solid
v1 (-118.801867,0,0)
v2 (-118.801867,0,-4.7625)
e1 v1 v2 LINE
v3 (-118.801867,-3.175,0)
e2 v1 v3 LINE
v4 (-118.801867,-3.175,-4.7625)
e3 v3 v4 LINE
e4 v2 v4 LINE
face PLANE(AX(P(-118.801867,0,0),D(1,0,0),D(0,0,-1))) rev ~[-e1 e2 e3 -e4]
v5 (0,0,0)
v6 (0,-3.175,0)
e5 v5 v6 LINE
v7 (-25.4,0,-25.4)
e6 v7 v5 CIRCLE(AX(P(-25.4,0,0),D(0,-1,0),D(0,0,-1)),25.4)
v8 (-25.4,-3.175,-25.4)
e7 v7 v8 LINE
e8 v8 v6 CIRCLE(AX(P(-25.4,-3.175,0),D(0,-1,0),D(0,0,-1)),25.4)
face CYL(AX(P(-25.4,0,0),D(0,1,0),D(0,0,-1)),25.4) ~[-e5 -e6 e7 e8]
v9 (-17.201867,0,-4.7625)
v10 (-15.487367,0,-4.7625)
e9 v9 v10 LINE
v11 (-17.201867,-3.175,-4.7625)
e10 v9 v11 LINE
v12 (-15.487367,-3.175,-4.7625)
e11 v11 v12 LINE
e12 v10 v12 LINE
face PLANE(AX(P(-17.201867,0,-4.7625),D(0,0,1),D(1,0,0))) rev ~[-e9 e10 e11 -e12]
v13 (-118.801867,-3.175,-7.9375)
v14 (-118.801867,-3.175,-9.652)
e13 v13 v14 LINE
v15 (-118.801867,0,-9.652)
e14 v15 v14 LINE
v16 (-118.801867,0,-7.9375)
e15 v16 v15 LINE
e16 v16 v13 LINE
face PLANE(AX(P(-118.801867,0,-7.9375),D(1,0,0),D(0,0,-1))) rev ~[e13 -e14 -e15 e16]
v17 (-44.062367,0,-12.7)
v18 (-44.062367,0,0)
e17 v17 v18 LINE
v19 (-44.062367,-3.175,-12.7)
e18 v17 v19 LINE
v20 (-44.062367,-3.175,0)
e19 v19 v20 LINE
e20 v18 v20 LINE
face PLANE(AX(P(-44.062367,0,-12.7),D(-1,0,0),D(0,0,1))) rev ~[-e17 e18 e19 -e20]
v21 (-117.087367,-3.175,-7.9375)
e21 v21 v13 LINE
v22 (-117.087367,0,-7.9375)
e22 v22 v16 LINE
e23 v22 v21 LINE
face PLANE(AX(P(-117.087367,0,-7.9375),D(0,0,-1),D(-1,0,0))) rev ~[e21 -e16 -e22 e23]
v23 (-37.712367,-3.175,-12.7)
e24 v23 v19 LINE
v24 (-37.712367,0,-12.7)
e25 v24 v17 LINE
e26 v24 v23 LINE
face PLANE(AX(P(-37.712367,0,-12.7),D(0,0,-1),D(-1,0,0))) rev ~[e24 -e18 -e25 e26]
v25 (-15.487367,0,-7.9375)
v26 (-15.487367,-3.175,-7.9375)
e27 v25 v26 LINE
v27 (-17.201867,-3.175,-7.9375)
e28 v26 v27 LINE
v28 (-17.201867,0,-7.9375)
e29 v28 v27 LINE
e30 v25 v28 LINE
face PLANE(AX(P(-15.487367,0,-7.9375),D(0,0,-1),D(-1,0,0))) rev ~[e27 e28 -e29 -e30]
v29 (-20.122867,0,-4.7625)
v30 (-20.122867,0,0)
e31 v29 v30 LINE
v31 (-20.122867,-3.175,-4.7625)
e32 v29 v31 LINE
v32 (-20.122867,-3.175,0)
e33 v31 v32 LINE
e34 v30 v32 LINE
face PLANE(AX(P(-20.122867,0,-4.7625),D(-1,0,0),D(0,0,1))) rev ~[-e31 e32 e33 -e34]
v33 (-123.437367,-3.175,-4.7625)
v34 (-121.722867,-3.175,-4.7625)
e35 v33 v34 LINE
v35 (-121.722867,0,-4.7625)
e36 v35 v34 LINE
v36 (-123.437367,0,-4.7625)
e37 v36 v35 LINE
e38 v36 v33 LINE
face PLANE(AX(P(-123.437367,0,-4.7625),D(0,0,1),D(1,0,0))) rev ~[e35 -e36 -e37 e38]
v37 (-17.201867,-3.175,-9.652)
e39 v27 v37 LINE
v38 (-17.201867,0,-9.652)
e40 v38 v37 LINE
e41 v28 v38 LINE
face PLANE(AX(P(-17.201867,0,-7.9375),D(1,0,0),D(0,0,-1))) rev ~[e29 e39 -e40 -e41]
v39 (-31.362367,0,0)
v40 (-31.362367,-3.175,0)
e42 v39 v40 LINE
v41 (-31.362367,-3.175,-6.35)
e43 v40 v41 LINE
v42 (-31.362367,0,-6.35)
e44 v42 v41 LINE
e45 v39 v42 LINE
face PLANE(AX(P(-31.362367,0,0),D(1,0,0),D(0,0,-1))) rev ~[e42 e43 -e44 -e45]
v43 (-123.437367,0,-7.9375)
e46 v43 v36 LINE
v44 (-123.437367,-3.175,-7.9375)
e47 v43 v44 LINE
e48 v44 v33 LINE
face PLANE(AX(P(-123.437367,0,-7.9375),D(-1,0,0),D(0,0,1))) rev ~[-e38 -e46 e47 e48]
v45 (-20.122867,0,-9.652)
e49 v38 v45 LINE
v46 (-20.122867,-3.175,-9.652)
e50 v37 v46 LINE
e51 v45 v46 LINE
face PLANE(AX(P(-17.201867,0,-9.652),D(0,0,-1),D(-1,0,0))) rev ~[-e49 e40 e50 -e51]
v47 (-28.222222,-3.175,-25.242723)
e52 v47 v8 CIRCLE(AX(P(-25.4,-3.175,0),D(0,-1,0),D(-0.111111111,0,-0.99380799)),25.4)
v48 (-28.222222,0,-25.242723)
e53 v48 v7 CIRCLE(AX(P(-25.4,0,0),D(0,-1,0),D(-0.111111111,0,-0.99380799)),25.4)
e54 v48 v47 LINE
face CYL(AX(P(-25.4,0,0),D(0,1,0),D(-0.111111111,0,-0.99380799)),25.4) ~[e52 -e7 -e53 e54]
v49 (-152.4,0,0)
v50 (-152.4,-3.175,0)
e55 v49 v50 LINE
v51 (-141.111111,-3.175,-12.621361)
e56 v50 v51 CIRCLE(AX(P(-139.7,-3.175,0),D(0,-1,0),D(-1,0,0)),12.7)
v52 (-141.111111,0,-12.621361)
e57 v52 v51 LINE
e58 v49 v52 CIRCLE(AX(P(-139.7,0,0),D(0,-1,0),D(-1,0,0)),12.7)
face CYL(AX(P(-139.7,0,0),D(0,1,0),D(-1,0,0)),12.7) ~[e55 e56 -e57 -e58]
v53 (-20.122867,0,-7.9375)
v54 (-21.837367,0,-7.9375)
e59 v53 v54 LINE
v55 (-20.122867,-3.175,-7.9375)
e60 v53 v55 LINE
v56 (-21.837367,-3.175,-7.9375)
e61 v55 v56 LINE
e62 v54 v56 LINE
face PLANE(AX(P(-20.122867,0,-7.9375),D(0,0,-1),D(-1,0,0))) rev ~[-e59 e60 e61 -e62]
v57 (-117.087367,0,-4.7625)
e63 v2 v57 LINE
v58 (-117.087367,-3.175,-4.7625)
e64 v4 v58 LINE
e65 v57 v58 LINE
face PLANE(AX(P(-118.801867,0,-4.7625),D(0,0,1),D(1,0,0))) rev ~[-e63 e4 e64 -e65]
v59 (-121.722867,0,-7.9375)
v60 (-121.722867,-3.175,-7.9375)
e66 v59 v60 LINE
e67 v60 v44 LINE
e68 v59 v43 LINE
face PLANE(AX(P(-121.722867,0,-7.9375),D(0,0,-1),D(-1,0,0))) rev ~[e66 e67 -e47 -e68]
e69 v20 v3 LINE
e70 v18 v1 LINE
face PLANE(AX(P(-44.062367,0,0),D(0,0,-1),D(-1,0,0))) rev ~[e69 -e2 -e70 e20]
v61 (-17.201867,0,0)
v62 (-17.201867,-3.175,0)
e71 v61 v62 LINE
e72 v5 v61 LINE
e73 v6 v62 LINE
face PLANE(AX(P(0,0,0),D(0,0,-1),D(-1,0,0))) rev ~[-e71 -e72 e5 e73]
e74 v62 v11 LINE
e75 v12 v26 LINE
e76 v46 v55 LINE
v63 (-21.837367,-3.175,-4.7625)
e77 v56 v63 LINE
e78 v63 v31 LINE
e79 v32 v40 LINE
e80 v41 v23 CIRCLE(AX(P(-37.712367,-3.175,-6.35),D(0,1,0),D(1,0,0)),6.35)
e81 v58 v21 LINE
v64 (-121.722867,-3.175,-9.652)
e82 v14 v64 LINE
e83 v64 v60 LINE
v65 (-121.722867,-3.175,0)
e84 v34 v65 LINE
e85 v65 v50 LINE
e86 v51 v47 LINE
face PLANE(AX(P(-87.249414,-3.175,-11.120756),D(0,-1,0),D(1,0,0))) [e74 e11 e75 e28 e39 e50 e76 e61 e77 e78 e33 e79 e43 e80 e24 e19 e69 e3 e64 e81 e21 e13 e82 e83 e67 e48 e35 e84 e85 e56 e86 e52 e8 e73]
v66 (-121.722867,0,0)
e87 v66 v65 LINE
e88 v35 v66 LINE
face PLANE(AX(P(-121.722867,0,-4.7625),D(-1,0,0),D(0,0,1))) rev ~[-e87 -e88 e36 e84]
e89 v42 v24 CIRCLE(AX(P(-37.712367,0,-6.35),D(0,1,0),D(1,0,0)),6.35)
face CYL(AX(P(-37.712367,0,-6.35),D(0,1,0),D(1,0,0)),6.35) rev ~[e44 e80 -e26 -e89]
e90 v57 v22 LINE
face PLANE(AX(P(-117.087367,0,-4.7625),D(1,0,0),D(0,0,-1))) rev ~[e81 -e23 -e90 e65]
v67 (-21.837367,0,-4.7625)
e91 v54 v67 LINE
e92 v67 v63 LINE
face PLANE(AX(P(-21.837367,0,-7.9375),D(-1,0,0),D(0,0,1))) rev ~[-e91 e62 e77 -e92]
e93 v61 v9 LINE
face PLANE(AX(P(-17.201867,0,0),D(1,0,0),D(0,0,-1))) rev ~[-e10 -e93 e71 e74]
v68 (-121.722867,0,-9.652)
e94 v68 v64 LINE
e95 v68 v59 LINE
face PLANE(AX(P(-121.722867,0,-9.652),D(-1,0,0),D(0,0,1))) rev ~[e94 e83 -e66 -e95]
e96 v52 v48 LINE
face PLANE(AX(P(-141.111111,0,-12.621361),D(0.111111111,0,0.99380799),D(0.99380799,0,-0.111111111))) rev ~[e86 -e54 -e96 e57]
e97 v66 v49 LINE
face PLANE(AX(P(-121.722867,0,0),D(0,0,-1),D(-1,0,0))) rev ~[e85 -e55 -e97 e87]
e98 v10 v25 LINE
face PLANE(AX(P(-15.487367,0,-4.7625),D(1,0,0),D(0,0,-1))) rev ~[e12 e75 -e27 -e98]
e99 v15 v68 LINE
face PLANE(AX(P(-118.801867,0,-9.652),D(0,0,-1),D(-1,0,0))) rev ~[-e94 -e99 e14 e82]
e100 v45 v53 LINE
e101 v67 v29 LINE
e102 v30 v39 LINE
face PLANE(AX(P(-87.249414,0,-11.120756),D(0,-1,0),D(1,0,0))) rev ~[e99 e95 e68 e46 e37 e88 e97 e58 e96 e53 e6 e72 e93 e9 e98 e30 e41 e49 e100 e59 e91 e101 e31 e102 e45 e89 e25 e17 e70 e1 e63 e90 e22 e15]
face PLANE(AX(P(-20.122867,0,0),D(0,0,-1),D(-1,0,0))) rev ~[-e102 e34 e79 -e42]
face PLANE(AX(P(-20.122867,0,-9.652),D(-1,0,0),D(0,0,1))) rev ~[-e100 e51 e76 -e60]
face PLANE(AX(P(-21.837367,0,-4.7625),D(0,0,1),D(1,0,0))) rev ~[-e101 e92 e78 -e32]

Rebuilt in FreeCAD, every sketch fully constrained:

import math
import FreeCAD as App
import Part
import Sketcher
from FreeCAD import Vector
Q = App.Units.Quantity

doc = App.newDocument("Part")
body = doc.addObject("PartDesign::Body", "Body")

sketch1 = body.newObject("Sketcher::SketchObject", "Sketch")
sketch1.AttachmentSupport = (doc.getObject("XZ_Plane"), [""])
sketch1.MapMode = "FlatFace"
sketch1.addGeometry([
    Part.LineSegment(Vector(-118.8, 0, 0), Vector(-118.8, -4.8, 0)),
    Part.LineSegment(Vector(-118.8, -4.8, 0), Vector(-117.1, -4.8, 0)),
    Part.LineSegment(Vector(-117.1, -4.8, 0), Vector(-117.1, -7.9, 0)),
    Part.LineSegment(Vector(-117.1, -7.9, 0), Vector(-118.8, -7.9, 0)),
    Part.LineSegment(Vector(-118.8, -7.9, 0), Vector(-118.8, -9.7, 0)),
    Part.LineSegment(Vector(-118.8, -9.7, 0), Vector(-121.7, -9.7, 0)),
    Part.LineSegment(Vector(-121.7, -9.7, 0), Vector(-121.7, -7.9, 0)),
    Part.LineSegment(Vector(-121.7, -7.9, 0), Vector(-123.4, -7.9, 0)),
    Part.LineSegment(Vector(-123.4, -7.9, 0), Vector(-123.4, -4.8, 0)),
    Part.LineSegment(Vector(-123.4, -4.8, 0), Vector(-121.7, -4.8, 0)),
    Part.LineSegment(Vector(-121.7, -4.8, 0), Vector(-121.7, 0, 0)),
    Part.LineSegment(Vector(-121.7, 0, 0), Vector(-152.4, 0, 0)),
    Part.ArcOfCircle(Part.Circle(Vector(-139.7, 0, 0), Vector(0, 0, 1), 12.7), math.radians(180), math.radians(264)),
    Part.LineSegment(Vector(-141.1, -12.6, 0), Vector(-28.2, -25.2, 0)),
    Part.ArcOfCircle(Part.Circle(Vector(-25.4, 0, 0), Vector(0, 0, 1), 25.4), math.radians(-96.38), math.radians(-90)),
    Part.ArcOfCircle(Part.Circle(Vector(-25.4, 0, 0), Vector(0, 0, 1), 25.4), math.radians(-90), math.radians(0)),
    Part.LineSegment(Vector(0, 0, 0), Vector(-17.2, 0, 0)),
    Part.LineSegment(Vector(-17.2, 0, 0), Vector(-17.2, -4.8, 0)),
    Part.LineSegment(Vector(-17.2, -4.8, 0), Vector(-15.5, -4.8, 0)),
    Part.LineSegment(Vector(-15.5, -4.8, 0), Vector(-15.5, -7.9, 0)),
    Part.LineSegment(Vector(-15.5, -7.9, 0), Vector(-17.2, -7.9, 0)),
    Part.LineSegment(Vector(-17.2, -7.9, 0), Vector(-17.2, -9.7, 0)),
    Part.LineSegment(Vector(-17.2, -9.7, 0), Vector(-20.1, -9.7, 0)),
    Part.LineSegment(Vector(-20.1, -9.7, 0), Vector(-20.1, -7.9, 0)),
    Part.LineSegment(Vector(-20.1, -7.9, 0), Vector(-21.8, -7.9, 0)),
    Part.LineSegment(Vector(-21.8, -7.9, 0), Vector(-21.8, -4.8, 0)),
    Part.LineSegment(Vector(-21.8, -4.8, 0), Vector(-20.1, -4.8, 0)),
    Part.LineSegment(Vector(-20.1, -4.8, 0), Vector(-20.1, 0, 0)),
    Part.LineSegment(Vector(-20.1, 0, 0), Vector(-31.4, 0, 0)),
    Part.LineSegment(Vector(-31.4, 0, 0), Vector(-31.4, -6.3, 0)),
    Part.ArcOfCircle(Part.Circle(Vector(-37.7, -6.3, 0), Vector(0, 0, 1), 6.3), math.radians(-90), math.radians(0)),
    Part.LineSegment(Vector(-37.7, -12.7, 0), Vector(-44.1, -12.7, 0)),
    Part.LineSegment(Vector(-44.1, -12.7, 0), Vector(-44.1, 0, 0)),
    Part.LineSegment(Vector(-44.1, 0, 0), Vector(-118.8, 0, 0)),
], False)
sketch1.addConstraint([
    Sketcher.Constraint("Coincident", 0, 2, 1, 1),
    Sketcher.Constraint("Coincident", 1, 2, 2, 1),
    Sketcher.Constraint("Coincident", 2, 2, 3, 1),
    Sketcher.Constraint("Coincident", 3, 2, 4, 1),
    Sketcher.Constraint("Coincident", 4, 2, 5, 1),
    Sketcher.Constraint("Coincident", 5, 2, 6, 1),
    Sketcher.Constraint("Coincident", 6, 2, 7, 1),
    Sketcher.Constraint("Coincident", 7, 2, 8, 1),
    Sketcher.Constraint("Coincident", 8, 2, 9, 1),
    Sketcher.Constraint("Coincident", 9, 2, 10, 1),
    Sketcher.Constraint("Coincident", 10, 2, 11, 1),
    Sketcher.Constraint("Coincident", 11, 2, 12, 1),
    Sketcher.Constraint("Tangent", 12, 2, 13, 1),
    Sketcher.Constraint("Tangent", 13, 2, 14, 1),
    Sketcher.Constraint("Tangent", 14, 2, 15, 1),
    Sketcher.Constraint("Coincident", 15, 2, 16, 1),
    Sketcher.Constraint("Coincident", 16, 2, 17, 1),
    Sketcher.Constraint("Coincident", 17, 2, 18, 1),
    Sketcher.Constraint("Coincident", 18, 2, 19, 1),
    Sketcher.Constraint("Coincident", 19, 2, 20, 1),
    Sketcher.Constraint("Coincident", 20, 2, 21, 1),
    Sketcher.Constraint("Coincident", 21, 2, 22, 1),
    Sketcher.Constraint("Coincident", 22, 2, 23, 1),
    Sketcher.Constraint("Coincident", 23, 2, 24, 1),
    Sketcher.Constraint("Coincident", 24, 2, 25, 1),
    Sketcher.Constraint("Coincident", 25, 2, 26, 1),
    Sketcher.Constraint("Coincident", 26, 2, 27, 1),
    Sketcher.Constraint("Coincident", 27, 2, 28, 1),
    Sketcher.Constraint("Coincident", 28, 2, 29, 1),
    Sketcher.Constraint("Tangent", 29, 2, 30, 2),
    Sketcher.Constraint("Tangent", 30, 1, 31, 1),
    Sketcher.Constraint("Coincident", 31, 2, 32, 1),
    Sketcher.Constraint("Coincident", 32, 2, 33, 1),
    Sketcher.Constraint("Coincident", 33, 2, 0, 1),
    Sketcher.Constraint("Vertical", 0),
    Sketcher.Constraint("Horizontal", 1),
    Sketcher.Constraint("Vertical", 2),
    Sketcher.Constraint("Horizontal", 3),
    Sketcher.Constraint("Vertical", 4),
    Sketcher.Constraint("Horizontal", 5),
    Sketcher.Constraint("Vertical", 6),
    Sketcher.Constraint("Horizontal", 7),
    Sketcher.Constraint("Vertical", 8),
    Sketcher.Constraint("Horizontal", 9),
    Sketcher.Constraint("Vertical", 10),
    Sketcher.Constraint("Horizontal", 11),
    Sketcher.Constraint("Horizontal", 16),
    Sketcher.Constraint("Vertical", 17),
    Sketcher.Constraint("Horizontal", 18),
    Sketcher.Constraint("Vertical", 19),
    Sketcher.Constraint("Horizontal", 20),
    Sketcher.Constraint("Vertical", 21),
    Sketcher.Constraint("Horizontal", 22),
    Sketcher.Constraint("Vertical", 23),
    Sketcher.Constraint("Horizontal", 24),
    Sketcher.Constraint("Vertical", 25),
    Sketcher.Constraint("Horizontal", 26),
    Sketcher.Constraint("Vertical", 27),
    Sketcher.Constraint("Horizontal", 28),
    Sketcher.Constraint("Vertical", 29),
    Sketcher.Constraint("Horizontal", 31),
    Sketcher.Constraint("Vertical", 32),
    Sketcher.Constraint("Horizontal", 33),
    Sketcher.Constraint("Coincident", 15, 2, -1, 1),
    Sketcher.Constraint("Equal", 14, 15),
    Sketcher.Constraint("PointOnObject", 12, 3, -1),
    Sketcher.Constraint("PointOnObject", 14, 3, -1),
    Sketcher.Constraint("PointOnObject", 10, 2, -1),
    Sketcher.Constraint("PointOnObject", 27, 2, -1),
    Sketcher.Constraint("PointOnObject", 32, 2, -1),
    Sketcher.Constraint("Horizontal", 3, 2, 6, 2),
    Sketcher.Constraint("Horizontal", 1, 2, 8, 2),
    Sketcher.Constraint("Horizontal", 9, 2, 17, 2),
    Sketcher.Constraint("Horizontal", 7, 2, 19, 2),
    Sketcher.Constraint("Horizontal", 5, 2, 21, 2),
    Sketcher.Constraint("Horizontal", 20, 2, 23, 2),
    Sketcher.Constraint("Horizontal", 18, 2, 25, 2),
    Sketcher.Constraint("Vertical", 0, 2, 3, 2),
    Sketcher.Constraint("Vertical", 6, 2, 9, 2),
    Sketcher.Constraint("Vertical", 15, 3, 14, 2),
    Sketcher.Constraint("Vertical", 17, 2, 20, 2),
    Sketcher.Constraint("Vertical", 23, 2, 26, 2),
    Sketcher.Constraint("Equal", 3, 7),
    Sketcher.Constraint("Equal", 9, 18),
    Sketcher.Constraint("Equal", 5, 22),
    Sketcher.Constraint("Equal", 20, 24),
    Sketcher.Constraint("Equal", 26, 4),
    Sketcher.Constraint("Equal", 31, 29),
    Sketcher.Constraint("Radius", 14, Q("1 in")),
    Sketcher.Constraint("Radius", 12, Q("0.5 in")),
    Sketcher.Constraint("Radius", 30, Q("0.25 in")),
    Sketcher.Constraint("DistanceY", 32, 1, 32, 2, Q("0.5 in")),
    Sketcher.Constraint("DistanceX", 11, 2, -1, 1, Q("6 in")),
    Sketcher.Constraint("DistanceX", 5, 2, 5, 1, Q("0.115 in")),
    Sketcher.Constraint("DistanceY", 0, 2, 0, 1, Q("0.1875 in")),
    Sketcher.Constraint("DistanceY", 2, 2, 2, 1, Q("0.125 in")),
    Sketcher.Constraint("DistanceY", 4, 2, -1, 1, Q("0.38 in")),
    Sketcher.Constraint("DistanceX", 28, 2, 28, 1, Q("0.4425 in")),
    Sketcher.Constraint("DistanceX", 33, 2, 33, 1, Q("2.9425 in")),
    Sketcher.Constraint("DistanceX", 11, 2, 11, 1, Q("30.677133 mm")),
])
pad1 = body.newObject("PartDesign::Pad", "Pad")
pad1.Profile = sketch1
pad1.Length = Q("0.125 in")

doc.recompute()
